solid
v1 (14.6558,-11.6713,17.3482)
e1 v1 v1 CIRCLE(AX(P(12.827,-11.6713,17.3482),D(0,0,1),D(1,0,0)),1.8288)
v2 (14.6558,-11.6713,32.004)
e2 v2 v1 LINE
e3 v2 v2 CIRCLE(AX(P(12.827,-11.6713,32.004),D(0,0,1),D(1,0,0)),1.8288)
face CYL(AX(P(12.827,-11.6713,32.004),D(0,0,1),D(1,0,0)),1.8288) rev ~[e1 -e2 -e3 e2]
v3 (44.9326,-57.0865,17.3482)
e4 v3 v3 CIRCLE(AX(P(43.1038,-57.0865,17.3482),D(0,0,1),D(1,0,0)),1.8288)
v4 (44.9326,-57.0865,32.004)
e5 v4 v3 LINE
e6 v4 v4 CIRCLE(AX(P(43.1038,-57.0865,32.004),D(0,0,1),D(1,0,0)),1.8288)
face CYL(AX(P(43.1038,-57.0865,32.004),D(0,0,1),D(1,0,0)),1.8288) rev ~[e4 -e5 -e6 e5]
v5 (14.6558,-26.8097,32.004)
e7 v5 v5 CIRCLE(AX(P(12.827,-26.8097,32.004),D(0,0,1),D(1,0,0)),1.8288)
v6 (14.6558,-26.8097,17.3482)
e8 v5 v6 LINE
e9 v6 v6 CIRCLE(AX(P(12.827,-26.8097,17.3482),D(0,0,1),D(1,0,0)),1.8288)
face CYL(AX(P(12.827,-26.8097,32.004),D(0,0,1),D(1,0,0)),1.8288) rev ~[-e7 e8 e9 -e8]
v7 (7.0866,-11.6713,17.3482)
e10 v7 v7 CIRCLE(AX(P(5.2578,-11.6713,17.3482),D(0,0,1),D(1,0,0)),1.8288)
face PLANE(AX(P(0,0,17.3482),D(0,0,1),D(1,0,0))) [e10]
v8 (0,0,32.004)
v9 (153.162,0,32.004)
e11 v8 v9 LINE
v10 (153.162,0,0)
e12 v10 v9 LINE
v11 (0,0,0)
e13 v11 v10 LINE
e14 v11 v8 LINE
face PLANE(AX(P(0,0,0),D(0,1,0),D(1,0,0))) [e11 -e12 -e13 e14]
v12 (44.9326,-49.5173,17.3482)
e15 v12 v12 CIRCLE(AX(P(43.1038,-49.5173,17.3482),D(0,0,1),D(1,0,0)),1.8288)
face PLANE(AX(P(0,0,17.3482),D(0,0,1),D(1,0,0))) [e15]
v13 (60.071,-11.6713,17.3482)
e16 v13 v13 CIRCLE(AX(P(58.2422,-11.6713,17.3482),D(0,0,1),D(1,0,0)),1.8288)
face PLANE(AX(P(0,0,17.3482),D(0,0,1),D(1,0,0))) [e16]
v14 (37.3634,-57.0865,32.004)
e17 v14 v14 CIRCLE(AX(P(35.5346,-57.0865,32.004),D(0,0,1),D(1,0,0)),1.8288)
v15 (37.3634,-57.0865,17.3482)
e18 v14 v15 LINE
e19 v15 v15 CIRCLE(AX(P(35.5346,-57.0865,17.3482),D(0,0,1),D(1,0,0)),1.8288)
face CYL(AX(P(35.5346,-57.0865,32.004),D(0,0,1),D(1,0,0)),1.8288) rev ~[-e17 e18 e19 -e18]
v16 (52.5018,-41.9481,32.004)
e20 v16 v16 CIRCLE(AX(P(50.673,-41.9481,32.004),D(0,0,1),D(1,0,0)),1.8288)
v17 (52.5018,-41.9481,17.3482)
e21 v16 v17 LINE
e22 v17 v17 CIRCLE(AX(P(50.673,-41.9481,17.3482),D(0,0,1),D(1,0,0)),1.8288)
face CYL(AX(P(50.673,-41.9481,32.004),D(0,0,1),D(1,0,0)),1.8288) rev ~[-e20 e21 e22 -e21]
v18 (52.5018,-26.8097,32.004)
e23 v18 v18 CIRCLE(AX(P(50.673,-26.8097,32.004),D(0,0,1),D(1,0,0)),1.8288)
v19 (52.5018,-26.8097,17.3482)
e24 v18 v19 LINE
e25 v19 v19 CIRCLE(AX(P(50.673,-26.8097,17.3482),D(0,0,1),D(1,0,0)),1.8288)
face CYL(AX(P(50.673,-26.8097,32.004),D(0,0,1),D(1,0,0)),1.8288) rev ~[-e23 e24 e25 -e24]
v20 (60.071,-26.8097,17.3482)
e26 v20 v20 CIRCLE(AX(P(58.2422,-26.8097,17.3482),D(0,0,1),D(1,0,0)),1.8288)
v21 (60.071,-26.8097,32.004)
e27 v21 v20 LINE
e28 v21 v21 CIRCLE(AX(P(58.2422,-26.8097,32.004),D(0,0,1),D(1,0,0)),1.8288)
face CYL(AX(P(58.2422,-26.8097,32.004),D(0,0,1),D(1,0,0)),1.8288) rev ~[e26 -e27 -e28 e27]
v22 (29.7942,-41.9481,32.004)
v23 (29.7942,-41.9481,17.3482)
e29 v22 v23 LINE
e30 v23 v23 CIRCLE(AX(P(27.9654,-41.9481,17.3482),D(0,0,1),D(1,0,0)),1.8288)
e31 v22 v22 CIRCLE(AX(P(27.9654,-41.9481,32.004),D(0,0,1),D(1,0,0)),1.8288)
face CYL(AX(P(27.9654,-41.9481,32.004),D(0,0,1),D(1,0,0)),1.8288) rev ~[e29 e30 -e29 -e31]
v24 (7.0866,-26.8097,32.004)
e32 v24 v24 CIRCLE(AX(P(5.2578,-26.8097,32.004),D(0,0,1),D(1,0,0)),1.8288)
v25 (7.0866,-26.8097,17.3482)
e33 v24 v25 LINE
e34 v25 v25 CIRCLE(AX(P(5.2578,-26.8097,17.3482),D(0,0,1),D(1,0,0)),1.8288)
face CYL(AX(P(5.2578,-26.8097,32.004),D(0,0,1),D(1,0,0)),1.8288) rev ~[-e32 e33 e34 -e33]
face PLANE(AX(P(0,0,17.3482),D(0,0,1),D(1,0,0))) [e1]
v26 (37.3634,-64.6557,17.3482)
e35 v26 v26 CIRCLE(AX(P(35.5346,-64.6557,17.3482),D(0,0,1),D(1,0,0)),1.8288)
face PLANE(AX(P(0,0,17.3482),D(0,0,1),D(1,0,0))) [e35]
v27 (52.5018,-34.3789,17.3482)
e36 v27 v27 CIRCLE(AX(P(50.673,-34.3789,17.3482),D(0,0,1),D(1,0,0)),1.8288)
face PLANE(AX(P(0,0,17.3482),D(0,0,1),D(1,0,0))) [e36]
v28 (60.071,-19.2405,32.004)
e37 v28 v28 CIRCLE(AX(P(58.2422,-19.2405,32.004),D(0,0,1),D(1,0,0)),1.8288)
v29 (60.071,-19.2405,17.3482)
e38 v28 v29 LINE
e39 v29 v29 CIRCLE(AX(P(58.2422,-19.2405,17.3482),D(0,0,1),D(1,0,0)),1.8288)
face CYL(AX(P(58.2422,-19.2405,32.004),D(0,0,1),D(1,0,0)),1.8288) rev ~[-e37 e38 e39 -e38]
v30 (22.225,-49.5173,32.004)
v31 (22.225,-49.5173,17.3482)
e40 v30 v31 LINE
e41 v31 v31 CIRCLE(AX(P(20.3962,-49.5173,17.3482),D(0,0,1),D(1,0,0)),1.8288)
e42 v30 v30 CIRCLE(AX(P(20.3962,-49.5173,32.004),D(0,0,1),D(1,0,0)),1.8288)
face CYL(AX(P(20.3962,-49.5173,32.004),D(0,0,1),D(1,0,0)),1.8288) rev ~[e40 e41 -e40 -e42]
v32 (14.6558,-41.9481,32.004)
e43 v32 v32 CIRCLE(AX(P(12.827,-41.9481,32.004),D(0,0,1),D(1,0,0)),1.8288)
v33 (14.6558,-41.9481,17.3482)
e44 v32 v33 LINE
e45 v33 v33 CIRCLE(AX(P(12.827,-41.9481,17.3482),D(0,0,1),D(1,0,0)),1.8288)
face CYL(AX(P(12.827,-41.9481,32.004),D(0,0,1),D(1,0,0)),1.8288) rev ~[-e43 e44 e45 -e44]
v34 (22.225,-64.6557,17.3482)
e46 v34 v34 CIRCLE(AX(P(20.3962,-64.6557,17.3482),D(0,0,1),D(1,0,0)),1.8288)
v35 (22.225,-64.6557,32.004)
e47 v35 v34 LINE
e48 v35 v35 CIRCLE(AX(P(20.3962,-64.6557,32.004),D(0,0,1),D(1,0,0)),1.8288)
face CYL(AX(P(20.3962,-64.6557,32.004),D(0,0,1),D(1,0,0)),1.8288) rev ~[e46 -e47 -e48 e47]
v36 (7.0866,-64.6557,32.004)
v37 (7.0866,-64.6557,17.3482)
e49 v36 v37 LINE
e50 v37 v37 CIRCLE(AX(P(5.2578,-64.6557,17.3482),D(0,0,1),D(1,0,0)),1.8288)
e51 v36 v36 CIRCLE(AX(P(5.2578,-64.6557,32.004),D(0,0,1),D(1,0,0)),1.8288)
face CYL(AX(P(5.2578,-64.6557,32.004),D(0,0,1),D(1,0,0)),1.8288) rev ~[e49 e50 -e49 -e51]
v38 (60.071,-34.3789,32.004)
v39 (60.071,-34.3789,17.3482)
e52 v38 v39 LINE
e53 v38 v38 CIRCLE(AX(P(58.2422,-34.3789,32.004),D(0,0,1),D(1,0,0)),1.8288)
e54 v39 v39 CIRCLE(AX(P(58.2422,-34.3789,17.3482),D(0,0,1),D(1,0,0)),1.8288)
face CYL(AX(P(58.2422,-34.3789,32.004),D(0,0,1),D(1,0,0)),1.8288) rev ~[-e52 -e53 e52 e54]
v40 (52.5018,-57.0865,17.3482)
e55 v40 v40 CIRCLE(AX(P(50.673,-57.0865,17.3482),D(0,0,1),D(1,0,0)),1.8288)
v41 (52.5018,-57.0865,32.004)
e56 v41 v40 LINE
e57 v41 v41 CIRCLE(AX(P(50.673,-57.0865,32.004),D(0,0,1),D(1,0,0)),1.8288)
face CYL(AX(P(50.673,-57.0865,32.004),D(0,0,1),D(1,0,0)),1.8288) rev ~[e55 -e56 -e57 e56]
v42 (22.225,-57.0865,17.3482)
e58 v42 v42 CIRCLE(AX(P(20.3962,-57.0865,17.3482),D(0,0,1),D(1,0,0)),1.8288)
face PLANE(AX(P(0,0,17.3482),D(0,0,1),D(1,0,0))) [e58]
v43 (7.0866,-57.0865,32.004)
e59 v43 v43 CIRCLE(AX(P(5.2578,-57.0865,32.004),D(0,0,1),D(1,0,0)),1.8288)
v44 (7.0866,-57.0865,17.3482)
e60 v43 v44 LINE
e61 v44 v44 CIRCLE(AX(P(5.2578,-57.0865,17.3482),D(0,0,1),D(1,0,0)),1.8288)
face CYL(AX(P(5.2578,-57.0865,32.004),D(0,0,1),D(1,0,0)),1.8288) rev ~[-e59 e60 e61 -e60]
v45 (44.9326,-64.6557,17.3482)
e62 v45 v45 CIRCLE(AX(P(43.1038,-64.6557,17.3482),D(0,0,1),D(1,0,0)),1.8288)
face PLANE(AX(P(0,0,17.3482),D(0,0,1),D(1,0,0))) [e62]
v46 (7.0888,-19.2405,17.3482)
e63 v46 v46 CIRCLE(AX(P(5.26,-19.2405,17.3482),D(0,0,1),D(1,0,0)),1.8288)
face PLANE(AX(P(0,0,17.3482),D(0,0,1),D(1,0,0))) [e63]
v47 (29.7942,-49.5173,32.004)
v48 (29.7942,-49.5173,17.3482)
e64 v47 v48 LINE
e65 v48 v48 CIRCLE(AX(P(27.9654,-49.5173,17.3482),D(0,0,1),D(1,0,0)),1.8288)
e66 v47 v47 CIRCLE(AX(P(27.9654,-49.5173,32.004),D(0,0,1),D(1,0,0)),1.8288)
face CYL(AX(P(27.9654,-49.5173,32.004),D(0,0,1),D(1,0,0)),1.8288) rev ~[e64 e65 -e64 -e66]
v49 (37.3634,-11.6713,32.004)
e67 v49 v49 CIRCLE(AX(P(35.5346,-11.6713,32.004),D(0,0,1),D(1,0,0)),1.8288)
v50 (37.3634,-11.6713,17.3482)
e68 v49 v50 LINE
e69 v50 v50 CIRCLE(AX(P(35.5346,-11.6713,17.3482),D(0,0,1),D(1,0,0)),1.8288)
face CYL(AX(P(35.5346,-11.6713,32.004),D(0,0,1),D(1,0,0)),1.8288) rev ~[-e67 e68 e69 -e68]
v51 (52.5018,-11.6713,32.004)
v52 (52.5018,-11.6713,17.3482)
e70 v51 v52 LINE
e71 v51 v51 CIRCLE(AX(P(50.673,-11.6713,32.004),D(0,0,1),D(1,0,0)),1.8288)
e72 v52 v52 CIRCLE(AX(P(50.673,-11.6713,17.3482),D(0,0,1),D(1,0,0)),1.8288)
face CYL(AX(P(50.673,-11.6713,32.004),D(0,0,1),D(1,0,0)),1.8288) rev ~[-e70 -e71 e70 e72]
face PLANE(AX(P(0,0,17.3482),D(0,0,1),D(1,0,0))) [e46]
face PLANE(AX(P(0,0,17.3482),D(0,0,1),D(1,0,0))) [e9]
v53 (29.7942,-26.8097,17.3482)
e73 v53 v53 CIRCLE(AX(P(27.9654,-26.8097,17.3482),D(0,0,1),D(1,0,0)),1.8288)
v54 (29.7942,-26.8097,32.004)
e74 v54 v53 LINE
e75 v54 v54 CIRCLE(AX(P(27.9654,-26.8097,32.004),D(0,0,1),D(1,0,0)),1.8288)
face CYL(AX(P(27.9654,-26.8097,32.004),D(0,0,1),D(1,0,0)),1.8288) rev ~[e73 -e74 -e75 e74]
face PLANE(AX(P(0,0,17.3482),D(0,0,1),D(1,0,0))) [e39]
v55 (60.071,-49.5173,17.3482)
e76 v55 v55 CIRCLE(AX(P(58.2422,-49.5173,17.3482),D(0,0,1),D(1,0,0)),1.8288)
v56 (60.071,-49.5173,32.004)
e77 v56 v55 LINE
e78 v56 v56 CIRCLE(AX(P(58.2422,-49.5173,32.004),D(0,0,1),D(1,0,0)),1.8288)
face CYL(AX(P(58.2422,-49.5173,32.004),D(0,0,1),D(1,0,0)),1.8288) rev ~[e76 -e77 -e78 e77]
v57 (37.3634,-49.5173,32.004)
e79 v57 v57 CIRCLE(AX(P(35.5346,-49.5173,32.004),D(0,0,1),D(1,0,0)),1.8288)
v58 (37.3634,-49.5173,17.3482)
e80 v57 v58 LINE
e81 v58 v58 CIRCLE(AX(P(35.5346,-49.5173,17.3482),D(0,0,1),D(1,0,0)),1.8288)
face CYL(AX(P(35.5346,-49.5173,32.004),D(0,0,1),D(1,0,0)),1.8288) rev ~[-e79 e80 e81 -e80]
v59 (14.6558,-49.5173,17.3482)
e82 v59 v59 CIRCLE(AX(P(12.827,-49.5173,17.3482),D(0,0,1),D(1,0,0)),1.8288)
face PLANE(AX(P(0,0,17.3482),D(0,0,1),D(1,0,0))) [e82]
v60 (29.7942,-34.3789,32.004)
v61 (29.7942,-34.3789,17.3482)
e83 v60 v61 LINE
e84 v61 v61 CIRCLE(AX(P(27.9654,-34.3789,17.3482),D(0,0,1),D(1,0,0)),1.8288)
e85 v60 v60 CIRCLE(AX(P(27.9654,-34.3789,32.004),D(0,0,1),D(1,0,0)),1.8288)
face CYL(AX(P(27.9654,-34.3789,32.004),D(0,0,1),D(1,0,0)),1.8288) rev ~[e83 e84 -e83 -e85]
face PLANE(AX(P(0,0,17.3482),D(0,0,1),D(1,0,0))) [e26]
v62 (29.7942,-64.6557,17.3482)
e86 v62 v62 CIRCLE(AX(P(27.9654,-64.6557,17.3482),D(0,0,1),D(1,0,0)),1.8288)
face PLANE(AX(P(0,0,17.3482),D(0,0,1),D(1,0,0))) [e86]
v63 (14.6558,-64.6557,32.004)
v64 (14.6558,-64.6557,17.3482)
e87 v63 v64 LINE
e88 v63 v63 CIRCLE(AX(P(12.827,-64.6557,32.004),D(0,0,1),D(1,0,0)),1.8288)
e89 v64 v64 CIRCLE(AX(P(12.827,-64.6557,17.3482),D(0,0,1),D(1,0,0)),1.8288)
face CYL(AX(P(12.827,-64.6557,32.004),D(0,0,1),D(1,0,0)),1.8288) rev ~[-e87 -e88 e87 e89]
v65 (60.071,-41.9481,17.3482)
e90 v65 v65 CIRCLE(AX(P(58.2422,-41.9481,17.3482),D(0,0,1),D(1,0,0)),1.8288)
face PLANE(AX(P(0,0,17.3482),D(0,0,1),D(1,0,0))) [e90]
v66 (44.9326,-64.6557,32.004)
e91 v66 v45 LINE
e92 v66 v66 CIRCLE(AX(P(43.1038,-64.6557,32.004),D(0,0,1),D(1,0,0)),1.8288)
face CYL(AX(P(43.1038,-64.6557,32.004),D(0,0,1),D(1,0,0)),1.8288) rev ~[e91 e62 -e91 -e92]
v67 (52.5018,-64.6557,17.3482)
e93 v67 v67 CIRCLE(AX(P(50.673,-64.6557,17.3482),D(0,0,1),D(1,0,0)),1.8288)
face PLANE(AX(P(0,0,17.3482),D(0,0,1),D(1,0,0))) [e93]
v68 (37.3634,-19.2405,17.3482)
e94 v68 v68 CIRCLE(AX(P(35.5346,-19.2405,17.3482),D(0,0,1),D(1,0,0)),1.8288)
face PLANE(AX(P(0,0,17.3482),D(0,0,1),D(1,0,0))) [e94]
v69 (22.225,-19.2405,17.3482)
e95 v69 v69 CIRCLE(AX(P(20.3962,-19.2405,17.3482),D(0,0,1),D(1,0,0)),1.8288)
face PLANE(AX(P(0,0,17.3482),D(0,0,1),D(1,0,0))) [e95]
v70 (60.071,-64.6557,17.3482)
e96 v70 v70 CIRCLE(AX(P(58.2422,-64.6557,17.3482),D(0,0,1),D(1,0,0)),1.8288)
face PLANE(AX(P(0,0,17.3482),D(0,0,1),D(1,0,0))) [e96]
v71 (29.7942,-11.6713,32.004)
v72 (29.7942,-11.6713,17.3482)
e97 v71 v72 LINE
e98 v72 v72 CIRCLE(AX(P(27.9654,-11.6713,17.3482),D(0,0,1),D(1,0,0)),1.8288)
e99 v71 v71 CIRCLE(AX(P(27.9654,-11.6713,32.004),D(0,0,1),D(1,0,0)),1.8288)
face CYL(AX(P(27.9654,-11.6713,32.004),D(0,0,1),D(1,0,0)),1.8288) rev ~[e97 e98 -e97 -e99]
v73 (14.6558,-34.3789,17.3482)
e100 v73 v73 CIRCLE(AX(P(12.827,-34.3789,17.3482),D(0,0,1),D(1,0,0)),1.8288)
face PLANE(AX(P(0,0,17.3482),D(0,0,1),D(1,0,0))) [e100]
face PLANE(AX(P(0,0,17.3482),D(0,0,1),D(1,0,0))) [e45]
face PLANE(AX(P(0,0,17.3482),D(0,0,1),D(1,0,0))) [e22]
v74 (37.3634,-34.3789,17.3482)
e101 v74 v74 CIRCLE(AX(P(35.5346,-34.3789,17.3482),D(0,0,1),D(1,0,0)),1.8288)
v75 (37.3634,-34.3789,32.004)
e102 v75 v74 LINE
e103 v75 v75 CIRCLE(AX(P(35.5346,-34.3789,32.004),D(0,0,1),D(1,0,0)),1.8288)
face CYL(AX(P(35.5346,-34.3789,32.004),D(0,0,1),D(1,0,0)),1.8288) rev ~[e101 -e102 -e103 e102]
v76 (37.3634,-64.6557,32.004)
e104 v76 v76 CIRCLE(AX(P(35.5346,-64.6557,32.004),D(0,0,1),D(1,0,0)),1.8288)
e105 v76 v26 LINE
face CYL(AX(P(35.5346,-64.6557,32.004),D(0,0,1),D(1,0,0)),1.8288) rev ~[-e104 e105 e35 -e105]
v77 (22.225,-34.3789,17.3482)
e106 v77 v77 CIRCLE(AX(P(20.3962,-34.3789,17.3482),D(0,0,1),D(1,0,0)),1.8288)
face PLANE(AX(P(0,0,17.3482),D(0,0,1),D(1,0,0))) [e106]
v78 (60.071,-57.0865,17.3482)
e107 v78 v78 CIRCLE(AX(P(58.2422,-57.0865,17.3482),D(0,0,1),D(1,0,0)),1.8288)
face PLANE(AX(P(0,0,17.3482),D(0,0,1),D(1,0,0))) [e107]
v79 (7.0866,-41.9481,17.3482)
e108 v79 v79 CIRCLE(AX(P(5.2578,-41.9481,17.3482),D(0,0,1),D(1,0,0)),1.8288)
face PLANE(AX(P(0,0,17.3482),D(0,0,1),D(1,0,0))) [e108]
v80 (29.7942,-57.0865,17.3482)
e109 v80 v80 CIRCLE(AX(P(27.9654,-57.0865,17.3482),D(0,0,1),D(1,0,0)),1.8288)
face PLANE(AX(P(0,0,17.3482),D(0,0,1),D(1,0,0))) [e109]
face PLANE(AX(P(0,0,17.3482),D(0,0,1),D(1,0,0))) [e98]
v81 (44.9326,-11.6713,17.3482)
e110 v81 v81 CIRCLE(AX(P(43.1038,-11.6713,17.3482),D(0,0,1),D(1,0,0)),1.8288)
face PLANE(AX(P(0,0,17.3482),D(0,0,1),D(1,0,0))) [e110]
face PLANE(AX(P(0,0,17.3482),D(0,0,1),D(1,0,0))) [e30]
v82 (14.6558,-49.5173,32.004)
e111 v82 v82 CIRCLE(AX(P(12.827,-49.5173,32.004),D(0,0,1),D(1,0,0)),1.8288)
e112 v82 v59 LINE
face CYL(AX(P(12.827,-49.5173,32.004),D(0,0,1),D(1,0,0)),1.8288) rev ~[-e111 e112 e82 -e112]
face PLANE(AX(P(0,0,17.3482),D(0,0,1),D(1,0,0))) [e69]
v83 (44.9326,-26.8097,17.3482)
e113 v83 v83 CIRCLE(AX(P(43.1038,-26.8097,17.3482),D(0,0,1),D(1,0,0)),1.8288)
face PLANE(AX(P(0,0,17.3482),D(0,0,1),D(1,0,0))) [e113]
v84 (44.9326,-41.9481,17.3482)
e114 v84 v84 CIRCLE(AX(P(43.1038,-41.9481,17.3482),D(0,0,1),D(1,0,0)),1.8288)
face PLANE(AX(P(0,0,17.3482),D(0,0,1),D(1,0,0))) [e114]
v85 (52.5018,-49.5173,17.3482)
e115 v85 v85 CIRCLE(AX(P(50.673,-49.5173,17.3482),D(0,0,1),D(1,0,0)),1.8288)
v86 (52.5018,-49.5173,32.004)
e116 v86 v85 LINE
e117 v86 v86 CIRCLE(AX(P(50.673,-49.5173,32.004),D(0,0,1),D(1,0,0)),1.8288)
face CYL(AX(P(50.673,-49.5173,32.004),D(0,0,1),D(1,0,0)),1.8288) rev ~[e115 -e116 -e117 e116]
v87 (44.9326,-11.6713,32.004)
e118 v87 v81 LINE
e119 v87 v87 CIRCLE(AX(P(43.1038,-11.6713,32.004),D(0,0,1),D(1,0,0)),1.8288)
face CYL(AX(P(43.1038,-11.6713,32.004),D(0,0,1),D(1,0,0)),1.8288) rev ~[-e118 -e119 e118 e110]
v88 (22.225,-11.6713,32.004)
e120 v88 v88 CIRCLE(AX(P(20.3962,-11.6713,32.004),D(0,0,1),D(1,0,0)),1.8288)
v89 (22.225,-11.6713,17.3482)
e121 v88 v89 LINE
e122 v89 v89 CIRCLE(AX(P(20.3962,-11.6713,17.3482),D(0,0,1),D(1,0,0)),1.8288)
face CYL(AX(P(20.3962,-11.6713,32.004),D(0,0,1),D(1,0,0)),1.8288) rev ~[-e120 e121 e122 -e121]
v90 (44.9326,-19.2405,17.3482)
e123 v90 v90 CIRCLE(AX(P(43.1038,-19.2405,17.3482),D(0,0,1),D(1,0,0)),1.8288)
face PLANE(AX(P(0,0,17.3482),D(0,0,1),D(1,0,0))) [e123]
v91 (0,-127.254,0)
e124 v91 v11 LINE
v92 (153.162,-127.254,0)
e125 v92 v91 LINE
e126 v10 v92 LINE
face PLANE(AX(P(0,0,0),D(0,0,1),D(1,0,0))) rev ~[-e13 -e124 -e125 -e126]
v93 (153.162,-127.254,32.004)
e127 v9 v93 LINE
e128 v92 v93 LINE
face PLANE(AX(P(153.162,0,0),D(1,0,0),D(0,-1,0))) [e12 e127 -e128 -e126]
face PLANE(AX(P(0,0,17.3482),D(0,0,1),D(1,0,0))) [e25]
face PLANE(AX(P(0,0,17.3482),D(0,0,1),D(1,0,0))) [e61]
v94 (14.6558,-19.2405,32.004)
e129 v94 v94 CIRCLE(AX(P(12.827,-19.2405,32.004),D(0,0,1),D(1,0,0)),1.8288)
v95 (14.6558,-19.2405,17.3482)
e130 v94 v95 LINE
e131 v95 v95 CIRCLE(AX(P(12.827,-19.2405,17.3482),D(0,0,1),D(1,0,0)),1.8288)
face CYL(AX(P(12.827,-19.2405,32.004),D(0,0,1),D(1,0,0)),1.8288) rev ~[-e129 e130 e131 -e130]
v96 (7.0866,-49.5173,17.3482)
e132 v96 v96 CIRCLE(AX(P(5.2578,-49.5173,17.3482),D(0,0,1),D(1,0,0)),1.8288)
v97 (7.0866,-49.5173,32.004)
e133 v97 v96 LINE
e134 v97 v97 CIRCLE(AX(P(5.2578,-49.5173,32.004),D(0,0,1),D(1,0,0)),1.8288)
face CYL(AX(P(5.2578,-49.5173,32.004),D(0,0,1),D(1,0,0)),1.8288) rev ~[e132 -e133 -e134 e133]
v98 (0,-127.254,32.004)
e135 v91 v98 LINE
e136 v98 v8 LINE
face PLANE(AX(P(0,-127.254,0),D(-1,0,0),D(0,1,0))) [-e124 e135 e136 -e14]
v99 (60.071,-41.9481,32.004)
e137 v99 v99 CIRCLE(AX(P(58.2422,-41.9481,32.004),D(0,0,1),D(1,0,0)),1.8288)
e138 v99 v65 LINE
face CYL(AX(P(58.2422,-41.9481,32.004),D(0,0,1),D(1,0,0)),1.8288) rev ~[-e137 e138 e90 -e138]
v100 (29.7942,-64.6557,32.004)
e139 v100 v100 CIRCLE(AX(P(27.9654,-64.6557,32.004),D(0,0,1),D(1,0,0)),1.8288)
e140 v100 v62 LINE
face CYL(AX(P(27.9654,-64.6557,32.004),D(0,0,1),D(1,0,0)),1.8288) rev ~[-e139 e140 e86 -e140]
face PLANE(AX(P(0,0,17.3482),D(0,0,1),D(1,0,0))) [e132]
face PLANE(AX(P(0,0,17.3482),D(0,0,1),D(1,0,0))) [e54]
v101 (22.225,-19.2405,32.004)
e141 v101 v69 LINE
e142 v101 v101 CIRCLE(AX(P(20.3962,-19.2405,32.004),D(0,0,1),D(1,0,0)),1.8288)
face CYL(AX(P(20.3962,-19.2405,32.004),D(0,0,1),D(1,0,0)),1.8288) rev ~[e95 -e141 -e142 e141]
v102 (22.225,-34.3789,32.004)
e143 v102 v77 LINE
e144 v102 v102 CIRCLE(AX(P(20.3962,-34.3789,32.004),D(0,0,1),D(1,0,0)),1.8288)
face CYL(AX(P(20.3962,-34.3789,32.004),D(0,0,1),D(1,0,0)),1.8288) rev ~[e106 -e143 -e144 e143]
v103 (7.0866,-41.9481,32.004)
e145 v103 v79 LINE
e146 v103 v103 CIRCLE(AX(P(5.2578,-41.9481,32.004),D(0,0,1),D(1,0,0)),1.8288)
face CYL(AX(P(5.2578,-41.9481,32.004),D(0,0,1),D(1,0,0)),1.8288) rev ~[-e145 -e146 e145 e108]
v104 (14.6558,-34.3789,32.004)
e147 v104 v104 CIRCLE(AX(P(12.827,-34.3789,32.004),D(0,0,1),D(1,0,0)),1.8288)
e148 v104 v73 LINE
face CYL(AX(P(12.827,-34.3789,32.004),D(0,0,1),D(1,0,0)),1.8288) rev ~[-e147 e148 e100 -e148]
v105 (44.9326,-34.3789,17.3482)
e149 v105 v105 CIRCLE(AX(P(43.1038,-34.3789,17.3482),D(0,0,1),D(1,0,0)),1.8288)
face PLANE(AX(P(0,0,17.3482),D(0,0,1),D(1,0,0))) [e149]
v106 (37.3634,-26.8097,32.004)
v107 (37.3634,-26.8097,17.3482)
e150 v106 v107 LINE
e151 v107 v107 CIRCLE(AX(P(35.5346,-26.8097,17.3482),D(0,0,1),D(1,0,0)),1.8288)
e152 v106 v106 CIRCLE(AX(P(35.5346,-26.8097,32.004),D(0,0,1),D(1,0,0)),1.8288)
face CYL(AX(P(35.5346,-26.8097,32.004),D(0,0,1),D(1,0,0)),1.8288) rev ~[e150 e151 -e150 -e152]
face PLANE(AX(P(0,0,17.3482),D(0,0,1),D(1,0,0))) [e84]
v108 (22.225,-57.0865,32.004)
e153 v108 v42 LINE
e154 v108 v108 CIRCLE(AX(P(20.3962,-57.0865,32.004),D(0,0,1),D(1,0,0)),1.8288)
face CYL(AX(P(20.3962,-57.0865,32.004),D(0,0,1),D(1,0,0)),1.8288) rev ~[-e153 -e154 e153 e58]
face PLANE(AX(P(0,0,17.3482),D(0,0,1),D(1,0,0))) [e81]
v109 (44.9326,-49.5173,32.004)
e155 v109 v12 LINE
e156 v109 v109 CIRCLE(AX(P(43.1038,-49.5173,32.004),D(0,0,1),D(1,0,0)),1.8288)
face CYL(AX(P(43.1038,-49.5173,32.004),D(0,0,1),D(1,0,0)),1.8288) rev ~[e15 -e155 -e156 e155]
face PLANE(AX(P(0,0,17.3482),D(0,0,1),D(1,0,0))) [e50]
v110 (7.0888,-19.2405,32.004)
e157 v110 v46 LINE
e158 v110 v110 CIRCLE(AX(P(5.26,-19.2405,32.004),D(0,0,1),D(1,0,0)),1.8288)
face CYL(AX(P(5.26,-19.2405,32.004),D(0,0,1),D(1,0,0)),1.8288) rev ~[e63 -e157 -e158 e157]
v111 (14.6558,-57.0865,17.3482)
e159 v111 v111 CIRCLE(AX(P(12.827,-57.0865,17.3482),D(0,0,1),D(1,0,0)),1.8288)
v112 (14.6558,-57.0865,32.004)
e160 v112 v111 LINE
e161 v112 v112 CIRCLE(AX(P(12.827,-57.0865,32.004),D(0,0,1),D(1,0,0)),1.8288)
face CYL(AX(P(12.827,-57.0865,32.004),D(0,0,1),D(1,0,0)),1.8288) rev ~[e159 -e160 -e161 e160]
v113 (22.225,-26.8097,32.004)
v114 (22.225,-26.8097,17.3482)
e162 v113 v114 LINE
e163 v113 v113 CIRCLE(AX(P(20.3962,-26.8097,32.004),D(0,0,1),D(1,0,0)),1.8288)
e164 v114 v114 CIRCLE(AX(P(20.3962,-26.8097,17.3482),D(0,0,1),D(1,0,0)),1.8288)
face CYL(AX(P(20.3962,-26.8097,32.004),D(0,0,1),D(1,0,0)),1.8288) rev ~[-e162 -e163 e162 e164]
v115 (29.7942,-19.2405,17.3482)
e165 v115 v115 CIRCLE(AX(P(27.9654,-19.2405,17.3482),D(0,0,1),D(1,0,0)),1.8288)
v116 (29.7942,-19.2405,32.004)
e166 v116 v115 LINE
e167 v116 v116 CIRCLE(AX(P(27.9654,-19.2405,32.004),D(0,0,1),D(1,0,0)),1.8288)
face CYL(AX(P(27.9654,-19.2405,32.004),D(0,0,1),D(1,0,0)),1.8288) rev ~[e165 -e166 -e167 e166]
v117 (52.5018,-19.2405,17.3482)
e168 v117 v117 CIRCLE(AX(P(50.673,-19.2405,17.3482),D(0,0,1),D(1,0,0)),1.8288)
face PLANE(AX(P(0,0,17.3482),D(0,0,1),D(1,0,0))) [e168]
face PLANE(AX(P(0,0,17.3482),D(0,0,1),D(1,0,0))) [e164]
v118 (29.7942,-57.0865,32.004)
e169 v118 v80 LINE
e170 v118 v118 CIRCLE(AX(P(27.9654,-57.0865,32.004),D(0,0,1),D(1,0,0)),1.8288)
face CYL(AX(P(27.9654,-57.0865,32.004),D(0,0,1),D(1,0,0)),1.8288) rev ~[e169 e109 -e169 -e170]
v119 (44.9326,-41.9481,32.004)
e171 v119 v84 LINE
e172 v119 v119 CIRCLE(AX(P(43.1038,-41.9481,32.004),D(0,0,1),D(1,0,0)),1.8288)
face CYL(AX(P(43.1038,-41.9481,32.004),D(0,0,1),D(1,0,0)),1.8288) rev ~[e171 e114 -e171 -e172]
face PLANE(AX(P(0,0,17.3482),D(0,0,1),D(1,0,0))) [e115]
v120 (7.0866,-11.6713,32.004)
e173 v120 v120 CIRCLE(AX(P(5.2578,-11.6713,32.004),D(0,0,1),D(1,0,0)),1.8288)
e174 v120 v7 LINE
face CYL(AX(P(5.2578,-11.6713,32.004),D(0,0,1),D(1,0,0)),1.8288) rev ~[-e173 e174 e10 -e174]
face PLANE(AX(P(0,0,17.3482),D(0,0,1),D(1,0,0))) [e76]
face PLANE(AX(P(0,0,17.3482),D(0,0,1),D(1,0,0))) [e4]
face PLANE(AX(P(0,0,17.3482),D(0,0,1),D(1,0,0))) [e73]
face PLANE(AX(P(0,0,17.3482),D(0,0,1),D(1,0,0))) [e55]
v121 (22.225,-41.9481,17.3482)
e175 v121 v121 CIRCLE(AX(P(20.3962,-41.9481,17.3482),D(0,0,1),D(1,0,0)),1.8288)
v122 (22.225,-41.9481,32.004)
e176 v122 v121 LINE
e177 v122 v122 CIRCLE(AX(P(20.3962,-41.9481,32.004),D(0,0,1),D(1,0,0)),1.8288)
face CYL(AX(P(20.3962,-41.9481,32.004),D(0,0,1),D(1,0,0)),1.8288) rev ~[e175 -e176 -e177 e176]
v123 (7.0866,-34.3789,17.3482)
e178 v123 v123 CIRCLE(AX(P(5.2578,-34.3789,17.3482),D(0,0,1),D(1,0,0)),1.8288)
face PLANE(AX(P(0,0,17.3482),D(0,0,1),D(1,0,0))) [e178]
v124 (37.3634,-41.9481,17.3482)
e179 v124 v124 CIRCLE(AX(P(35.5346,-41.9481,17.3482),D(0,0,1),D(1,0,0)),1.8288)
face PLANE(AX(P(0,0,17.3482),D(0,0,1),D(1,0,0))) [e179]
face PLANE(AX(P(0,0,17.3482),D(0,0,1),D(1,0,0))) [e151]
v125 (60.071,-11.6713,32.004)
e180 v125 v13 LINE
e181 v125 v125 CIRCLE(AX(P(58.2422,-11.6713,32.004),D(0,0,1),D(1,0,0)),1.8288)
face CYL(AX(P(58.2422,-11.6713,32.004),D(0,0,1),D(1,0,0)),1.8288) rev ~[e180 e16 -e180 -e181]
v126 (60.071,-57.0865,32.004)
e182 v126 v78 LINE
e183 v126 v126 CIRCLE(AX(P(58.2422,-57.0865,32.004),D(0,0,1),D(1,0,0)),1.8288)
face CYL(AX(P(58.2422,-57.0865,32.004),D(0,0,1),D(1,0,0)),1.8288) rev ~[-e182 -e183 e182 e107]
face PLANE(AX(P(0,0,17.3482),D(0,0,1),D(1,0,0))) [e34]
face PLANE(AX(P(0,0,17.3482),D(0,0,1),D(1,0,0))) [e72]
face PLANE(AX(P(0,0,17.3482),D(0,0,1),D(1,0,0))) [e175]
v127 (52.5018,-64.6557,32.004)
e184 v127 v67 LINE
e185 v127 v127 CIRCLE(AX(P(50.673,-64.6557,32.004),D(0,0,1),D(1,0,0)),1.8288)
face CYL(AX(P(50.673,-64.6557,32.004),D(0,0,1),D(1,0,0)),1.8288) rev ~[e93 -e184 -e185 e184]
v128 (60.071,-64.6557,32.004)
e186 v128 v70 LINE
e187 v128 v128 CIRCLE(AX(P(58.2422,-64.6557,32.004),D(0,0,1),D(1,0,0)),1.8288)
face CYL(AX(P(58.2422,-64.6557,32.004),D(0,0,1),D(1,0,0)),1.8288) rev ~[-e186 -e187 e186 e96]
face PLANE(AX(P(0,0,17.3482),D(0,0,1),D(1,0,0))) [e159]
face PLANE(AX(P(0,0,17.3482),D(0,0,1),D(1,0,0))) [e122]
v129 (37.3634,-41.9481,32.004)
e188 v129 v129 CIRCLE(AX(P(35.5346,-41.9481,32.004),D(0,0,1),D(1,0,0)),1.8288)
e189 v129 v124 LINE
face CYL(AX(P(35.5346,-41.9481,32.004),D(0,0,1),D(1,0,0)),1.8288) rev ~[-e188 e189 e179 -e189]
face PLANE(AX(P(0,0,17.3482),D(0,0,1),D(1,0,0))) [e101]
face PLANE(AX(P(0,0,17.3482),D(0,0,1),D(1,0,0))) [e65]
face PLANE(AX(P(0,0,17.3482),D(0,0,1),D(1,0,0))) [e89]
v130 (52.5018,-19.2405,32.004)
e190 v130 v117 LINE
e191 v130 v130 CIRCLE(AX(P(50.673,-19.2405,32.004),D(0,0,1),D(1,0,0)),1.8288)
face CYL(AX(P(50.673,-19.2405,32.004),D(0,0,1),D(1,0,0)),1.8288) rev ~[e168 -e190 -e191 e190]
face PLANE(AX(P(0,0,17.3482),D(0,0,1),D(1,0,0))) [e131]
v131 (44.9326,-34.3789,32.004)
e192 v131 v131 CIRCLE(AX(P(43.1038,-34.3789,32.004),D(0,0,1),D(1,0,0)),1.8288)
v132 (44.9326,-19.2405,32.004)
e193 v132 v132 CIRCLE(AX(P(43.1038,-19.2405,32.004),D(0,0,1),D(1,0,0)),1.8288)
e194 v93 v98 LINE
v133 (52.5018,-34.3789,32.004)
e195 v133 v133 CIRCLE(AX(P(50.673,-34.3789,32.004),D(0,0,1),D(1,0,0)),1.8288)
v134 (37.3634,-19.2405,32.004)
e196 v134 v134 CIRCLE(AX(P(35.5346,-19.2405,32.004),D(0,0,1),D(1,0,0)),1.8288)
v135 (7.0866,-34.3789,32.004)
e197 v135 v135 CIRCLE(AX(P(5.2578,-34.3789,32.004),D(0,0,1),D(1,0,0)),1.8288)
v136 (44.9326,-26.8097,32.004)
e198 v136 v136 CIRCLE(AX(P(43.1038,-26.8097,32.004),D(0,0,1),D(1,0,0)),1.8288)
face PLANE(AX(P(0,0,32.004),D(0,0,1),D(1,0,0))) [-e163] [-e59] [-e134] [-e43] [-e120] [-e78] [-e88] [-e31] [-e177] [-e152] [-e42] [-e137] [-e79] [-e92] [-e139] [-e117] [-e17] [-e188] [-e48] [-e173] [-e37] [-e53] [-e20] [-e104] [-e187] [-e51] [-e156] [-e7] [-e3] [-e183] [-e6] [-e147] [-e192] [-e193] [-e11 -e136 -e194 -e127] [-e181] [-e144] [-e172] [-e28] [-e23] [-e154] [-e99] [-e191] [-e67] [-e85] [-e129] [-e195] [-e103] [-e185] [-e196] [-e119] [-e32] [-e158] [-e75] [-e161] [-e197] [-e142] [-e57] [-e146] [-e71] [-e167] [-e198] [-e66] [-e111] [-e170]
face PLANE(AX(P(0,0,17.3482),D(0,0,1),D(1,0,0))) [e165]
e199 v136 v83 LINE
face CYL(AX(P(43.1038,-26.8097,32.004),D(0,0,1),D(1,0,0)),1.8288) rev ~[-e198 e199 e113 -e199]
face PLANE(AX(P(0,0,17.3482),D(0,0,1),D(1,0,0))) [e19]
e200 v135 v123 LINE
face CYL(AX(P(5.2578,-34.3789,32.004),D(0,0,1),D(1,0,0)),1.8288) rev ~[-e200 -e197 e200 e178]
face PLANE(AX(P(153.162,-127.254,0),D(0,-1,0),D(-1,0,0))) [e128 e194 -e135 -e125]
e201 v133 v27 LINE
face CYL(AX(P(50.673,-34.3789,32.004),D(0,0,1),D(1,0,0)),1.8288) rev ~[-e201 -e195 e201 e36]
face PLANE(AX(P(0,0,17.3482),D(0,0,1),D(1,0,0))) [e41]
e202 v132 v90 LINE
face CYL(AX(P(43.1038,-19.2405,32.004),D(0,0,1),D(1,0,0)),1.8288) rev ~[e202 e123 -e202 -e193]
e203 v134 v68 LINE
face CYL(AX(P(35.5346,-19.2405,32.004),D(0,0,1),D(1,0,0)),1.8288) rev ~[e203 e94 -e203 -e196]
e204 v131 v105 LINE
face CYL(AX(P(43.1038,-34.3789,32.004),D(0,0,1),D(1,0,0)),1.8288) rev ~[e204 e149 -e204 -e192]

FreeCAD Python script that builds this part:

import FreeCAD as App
import Part
import Sketcher
from FreeCAD import Vector
Q = App.Units.Quantity


def add_polygon(sketch, points):
    """Adds a closed chain of lines whose ends are joined by coincident constraints."""
    first, n = sketch.GeometryCount, len(points)
    for a, b in zip(points, points[1:] + points[:1]):
        sketch.addGeometry(Part.LineSegment(App.Vector(*a, 0), App.Vector(*b, 0)), False)
    for i in range(n):
        sketch.addConstraint(Sketcher.Constraint("Coincident", first + i, 2, first + (i + 1) % n, 1))

doc = App.newDocument("Part")
body = doc.addObject("PartDesign::Body", "Body")

# Sketch on XY plane
sketch1 = doc.addObject("Sketcher::SketchObject", "Sketch")
body.addObject(sketch1)
sketch1.AttachmentSupport = (doc.XY_Plane, [""])
sketch1.MapMode = "FlatFace"
add_polygon(sketch1, [(153.162, 0), (0, 0), (0, -127.254), (153.162, -127.254)])  # lines 0-3
sketch1.addConstraint(Sketcher.Constraint("Horizontal", 0))
sketch1.addConstraint(Sketcher.Constraint("Vertical", 1))
sketch1.addConstraint(Sketcher.Constraint("Horizontal", 2))
sketch1.addConstraint(Sketcher.Constraint("Vertical", 3))
sketch1.addConstraint(Sketcher.Constraint("Coincident", 0, 2, -1, 1))
sketch1.addConstraint(Sketcher.Constraint("DistanceX", 0, 2, 0, 1, Q("6.03 in")))
sketch1.addConstraint(Sketcher.Constraint("DistanceY", 1, 2, 1, 1, Q("5.01 in")))
pad1 = doc.addObject("PartDesign::Pad", "Pad")
body.addObject(pad1)
pad1.Profile = sketch1
pad1.Length = Q("1.26 in")

# Sketch on XY plane
sketch2 = doc.addObject("Sketcher::SketchObject", "Sketch001")
body.addObject(sketch2)
sketch2.AttachmentSupport = (doc.XY_Plane, [""])
sketch2.MapMode = "FlatFace"
sketch2.AttachmentOffset = App.Placement(Vector(0, 0, 1.26 * 25.4), App.Rotation())
sketch2.addGeometry(Part.Circle(Vector(5.2578, -64.6557, 0), Vector(0, 0, 1), 1.8288), False)
sketch2.addConstraint(Sketcher.Constraint("Diameter", 0, Q("0.144 in")))
sketch2.addConstraint(Sketcher.Constraint("DistanceX", -1, 1, 0, 3, Q("0.207 in")))
sketch2.addConstraint(Sketcher.Constraint("DistanceY", 0, 3, -1, 1, Q("2.5455 in")))
pocket1 = doc.addObject("PartDesign::Pocket", "Pocket")
body.addObject(pocket1)
pocket1.Profile = sketch2
pocket1.Length = Q("0.577 in")

# Sketch on XY plane
sketch3 = doc.addObject("Sketcher::SketchObject", "Sketch002")
body.addObject(sketch3)
sketch3.AttachmentSupport = (doc.XY_Plane, [""])
sketch3.MapMode = "FlatFace"
sketch3.AttachmentOffset = App.Placement(Vector(0, 0, 1.26 * 25.4), App.Rotation())
sketch3.addGeometry(Part.Circle(Vector(5.2578, -64.6557, 0), Vector(0, 0, 1), 1.8288), False)
sketch3.addGeometry(Part.Circle(Vector(5.2578, -57.0865, 0), Vector(0, 0, 1), 1.8288), False)
sketch3.addGeometry(Part.Circle(Vector(12.827, -57.0865, 0), Vector(0, 0, 1), 1.8288), False)
sketch3.addGeometry(Part.Circle(Vector(12.827, -64.6557, 0), Vector(0, 0, 1), 1.8288), False)
sketch3.addGeometry(Part.Circle(Vector(12.827, -49.5173, 0), Vector(0, 0, 1), 1.8288), False)
sketch3.addGeometry(Part.Circle(Vector(5.2578, -49.5173, 0), Vector(0, 0, 1), 1.8288), False)
sketch3.addGeometry(Part.Circle(Vector(12.827, -41.9481, 0), Vector(0, 0, 1), 1.8288), False)
sketch3.addGeometry(Part.Circle(Vector(5.2578, -41.9481, 0), Vector(0, 0, 1), 1.8288), False)
sketch3.addGeometry(Part.Circle(Vector(20.3962, -64.6557, 0), Vector(0, 0, 1), 1.8288), False)
sketch3.addGeometry(Part.Circle(Vector(20.3962, -57.0865, 0), Vector(0, 0, 1), 1.8288), False)
sketch3.addGeometry(Part.Circle(Vector(20.3962, -49.5173, 0), Vector(0, 0, 1), 1.8288), False)
sketch3.addGeometry(Part.Circle(Vector(5.2578, -34.3789, 0), Vector(0, 0, 1), 1.8288), False)
sketch3.addGeometry(Part.Circle(Vector(12.827, -34.3789, 0), Vector(0, 0, 1), 1.8288), False)
sketch3.addGeometry(Part.Circle(Vector(12.827, -26.8097, 0), Vector(0, 0, 1), 1.8288), False)
sketch3.addGeometry(Part.Circle(Vector(12.827, -19.2405, 0), Vector(0, 0, 1), 1.8288), False)
sketch3.addGeometry(Part.Circle(Vector(5.26, -19.2405, 0), Vector(0, 0, 1), 1.8288), False)
sketch3.addGeometry(Part.Circle(Vector(5.2578, -26.8097, 0), Vector(0, 0, 1), 1.8288), False)
sketch3.addGeometry(Part.Circle(Vector(27.9654, -64.6557, 0), Vector(0, 0, 1), 1.8288), False)
sketch3.addGeometry(Part.Circle(Vector(27.9654, -57.0865, 0), Vector(0, 0, 1), 1.8288), False)
sketch3.addGeometry(Part.Circle(Vector(27.9654, -49.5173, 0), Vector(0, 0, 1), 1.8288), False)
sketch3.addGeometry(Part.Circle(Vector(27.9654, -41.9481, 0), Vector(0, 0, 1), 1.8288), False)
sketch3.addGeometry(Part.Circle(Vector(27.9654, -34.3789, 0), Vector(0, 0, 1), 1.8288), False)
sketch3.addGeometry(Part.Circle(Vector(27.9654, -26.8097, 0), Vector(0, 0, 1), 1.8288), False)
sketch3.addGeometry(Part.Circle(Vector(35.5346, -64.6557, 0), Vector(0, 0, 1), 1.8288), False)
sketch3.addGeometry(Part.Circle(Vector(35.5346, -57.0865, 0), Vector(0, 0, 1), 1.8288), False)
sketch3.addGeometry(Part.Circle(Vector(35.5346, -49.5173, 0), Vector(0, 0, 1), 1.8288), False)
sketch3.addGeometry(Part.Circle(Vector(35.5346, -41.9481, 0), Vector(0, 0, 1), 1.8288), False)
sketch3.addGeometry(Part.Circle(Vector(35.5346, -34.3789, 0), Vector(0, 0, 1), 1.8288), False)
sketch3.addGeometry(Part.Circle(Vector(35.5346, -26.8097, 0), Vector(0, 0, 1), 1.8288), False)
sketch3.addGeometry(Part.Circle(Vector(35.5346, -19.2405, 0), Vector(0, 0, 1), 1.8288), False)
sketch3.addGeometry(Part.Circle(Vector(27.9654, -19.2405, 0), Vector(0, 0, 1), 1.8288), False)
sketch3.addGeometry(Part.Circle(Vector(20.3962, -19.2405, 0), Vector(0, 0, 1), 1.8288), False)
sketch3.addGeometry(Part.Circle(Vector(20.3962, -26.8097, 0), Vector(0, 0, 1), 1.8288), False)
sketch3.addGeometry(Part.Circle(Vector(20.3962, -34.3789, 0), Vector(0, 0, 1), 1.8288), False)
sketch3.addGeometry(Part.Circle(Vector(20.3962, -11.6713, 0), Vector(0, 0, 1), 1.8288), False)
sketch3.addGeometry(Part.Circle(Vector(27.9654, -11.6713, 0), Vector(0, 0, 1), 1.8288), False)
sketch3.addGeometry(Part.Circle(Vector(35.5346, -11.6713, 0), Vector(0, 0, 1), 1.8288), False)
sketch3.addGeometry(Part.Circle(Vector(43.1038, -11.6713, 0), Vector(0, 0, 1), 1.8288), False)
sketch3.addGeometry(Part.Circle(Vector(43.1038, -19.2405, 0), Vector(0, 0, 1), 1.8288), False)
sketch3.addGeometry(Part.Circle(Vector(43.1038, -26.8097, 0), Vector(0, 0, 1), 1.8288), False)
sketch3.addGeometry(Part.Circle(Vector(43.1038, -34.3789, 0), Vector(0, 0, 1), 1.8288), False)
sketch3.addGeometry(Part.Circle(Vector(43.1038, -41.9481, 0), Vector(0, 0, 1), 1.8288), False)
sketch3.addGeometry(Part.Circle(Vector(43.1038, -49.5173, 0), Vector(0, 0, 1), 1.8288), False)
sketch3.addGeometry(Part.Circle(Vector(43.1038, -57.0865, 0), Vector(0, 0, 1), 1.8288), False)
sketch3.addGeometry(Part.Circle(Vector(43.1038, -64.6557, 0), Vector(0, 0, 1), 1.8288), False)
sketch3.addGeometry(Part.Circle(Vector(50.673, -64.6557, 0), Vector(0, 0, 1), 1.8288), False)
sketch3.addGeometry(Part.Circle(Vector(58.2422, -64.6557, 0), Vector(0, 0, 1), 1.8288), False)
sketch3.addGeometry(Part.Circle(Vector(50.673, -57.0865, 0), Vector(0, 0, 1), 1.8288), False)
sketch3.addGeometry(Part.Circle(Vector(58.2422, -57.0865, 0), Vector(0, 0, 1), 1.8288), False)
sketch3.addGeometry(Part.Circle(Vector(50.673, -49.5173, 0), Vector(0, 0, 1), 1.8288), False)
sketch3.addGeometry(Part.Circle(Vector(58.2422, -49.5173, 0), Vector(0, 0, 1), 1.8288), False)
sketch3.addGeometry(Part.Circle(Vector(58.2422, -41.9481, 0), Vector(0, 0, 1), 1.8288), False)
sketch3.addGeometry(Part.Circle(Vector(50.673, -41.9481, 0), Vector(0, 0, 1), 1.8288), False)
sketch3.addGeometry(Part.Circle(Vector(50.673, -34.3789, 0), Vector(0, 0, 1), 1.8288), False)
sketch3.addGeometry(Part.Circle(Vector(58.2422, -34.3789, 0), Vector(0, 0, 1), 1.8288), False)
sketch3.addGeometry(Part.Circle(Vector(58.2422, -26.8097, 0), Vector(0, 0, 1), 1.8288), False)
sketch3.addGeometry(Part.Circle(Vector(50.673, -26.8097, 0), Vector(0, 0, 1), 1.8288), False)
sketch3.addGeometry(Part.Circle(Vector(50.673, -19.2405, 0), Vector(0, 0, 1), 1.8288), False)
sketch3.addGeometry(Part.Circle(Vector(58.2422, -19.2405, 0), Vector(0, 0, 1), 1.8288), False)
sketch3.addGeometry(Part.Circle(Vector(58.2422, -11.6713, 0), Vector(0, 0, 1), 1.8288), False)
sketch3.addGeometry(Part.Circle(Vector(50.673, -11.6713, 0), Vector(0, 0, 1), 1.8288), False)
sketch3.addGeometry(Part.Circle(Vector(5.2578, -11.6713, 0), Vector(0, 0, 1), 1.8288), False)
sketch3.addGeometry(Part.Circle(Vector(12.827, -11.6713, 0), Vector(0, 0, 1), 1.8288), False)
sketch3.addGeometry(Part.Circle(Vector(20.3962, -41.9481, 0), Vector(0, 0, 1), 1.8288), False)
sketch3.addConstraint(Sketcher.Constraint("Equal", 0, 1))
sketch3.addConstraint(Sketcher.Constraint("Equal", 1, 2))
sketch3.addConstraint(Sketcher.Constraint("Equal", 2, 3))
sketch3.addConstraint(Sketcher.Constraint("Equal", 3, 4))
sketch3.addConstraint(Sketcher.Constraint("Equal", 4, 5))
sketch3.addConstraint(Sketcher.Constraint("Equal", 5, 6))
sketch3.addConstraint(Sketcher.Constraint("Equal", 6, 7))
sketch3.addConstraint(Sketcher.Constraint("Equal", 7, 8))
sketch3.addConstraint(Sketcher.Constraint("Equal", 8, 9))
sketch3.addConstraint(Sketcher.Constraint("Equal", 9, 10))
sketch3.addConstraint(Sketcher.Constraint("Equal", 10, 11))
sketch3.addConstraint(Sketcher.Constraint("Equal", 11, 12))
sketch3.addConstraint(Sketcher.Constraint("Equal", 12, 13))
sketch3.addConstraint(Sketcher.Constraint("Equal", 13, 14))
sketch3.addConstraint(Sketcher.Constraint("Equal", 14, 15))
sketch3.addConstraint(Sketcher.Constraint("Equal", 15, 16))
sketch3.addConstraint(Sketcher.Constraint("Equal", 16, 17))
sketch3.addConstraint(Sketcher.Constraint("Equal", 17, 18))
sketch3.addConstraint(Sketcher.Constraint("Equal", 18, 19))
sketch3.addConstraint(Sketcher.Constraint("Equal", 19, 20))
sketch3.addConstraint(Sketcher.Constraint("Equal", 20, 21))
sketch3.addConstraint(Sketcher.Constraint("Equal", 21, 22))
sketch3.addConstraint(Sketcher.Constraint("Equal", 22, 23))
sketch3.addConstraint(Sketcher.Constraint("Equal", 23, 24))
sketch3.addConstraint(Sketcher.Constraint("Equal", 24, 25))
sketch3.addConstraint(Sketcher.Constraint("Equal", 25, 26))
sketch3.addConstraint(Sketcher.Constraint("Equal", 26, 27))
sketch3.addConstraint(Sketcher.Constraint("Equal", 27, 28))
sketch3.addConstraint(Sketcher.Constraint("Equal", 28, 29))
sketch3.addConstraint(Sketcher.Constraint("Equal", 29, 30))
sketch3.addConstraint(Sketcher.Constraint("Equal", 30, 31))
sketch3.addConstraint(Sketcher.Constraint("Equal", 31, 32))
sketch3.addConstraint(Sketcher.Constraint("Equal", 32, 33))
sketch3.addConstraint(Sketcher.Constraint("Equal", 33, 34))
sketch3.addConstraint(Sketcher.Constraint("Equal", 34, 35))
sketch3.addConstraint(Sketcher.Constraint("Equal", 35, 36))
sketch3.addConstraint(Sketcher.Constraint("Equal", 36, 37))
sketch3.addConstraint(Sketcher.Constraint("Equal", 37, 38))
sketch3.addConstraint(Sketcher.Constraint("Equal", 38, 39))
sketch3.addConstraint(Sketcher.Constraint("Equal", 39, 40))
sketch3.addConstraint(Sketcher.Constraint("Equal", 40, 41))
sketch3.addConstraint(Sketcher.Constraint("Equal", 41, 42))
sketch3.addConstraint(Sketcher.Constraint("Equal", 42, 43))
sketch3.addConstraint(Sketcher.Constraint("Equal", 43, 44))
sketch3.addConstraint(Sketcher.Constraint("Equal", 44, 45))
sketch3.addConstraint(Sketcher.Constraint("Equal", 45, 46))
sketch3.addConstraint(Sketcher.Constraint("Equal", 46, 47))
sketch3.addConstraint(Sketcher.Constraint("Equal", 47, 48))
sketch3.addConstraint(Sketcher.Constraint("Equal", 48, 49))
sketch3.addConstraint(Sketcher.Constraint("Equal", 49, 50))
sketch3.addConstraint(Sketcher.Constraint("Equal", 50, 51))
sketch3.addConstraint(Sketcher.Constraint("Equal", 51, 52))
sketch3.addConstraint(Sketcher.Constraint("Equal", 52, 53))
sketch3.addConstraint(Sketcher.Constraint("Equal", 53, 54))
sketch3.addConstraint(Sketcher.Constraint("Equal", 54, 55))
sketch3.addConstraint(Sketcher.Constraint("Equal", 55, 56))
sketch3.addConstraint(Sketcher.Constraint("Equal", 56, 57))
sketch3.addConstraint(Sketcher.Constraint("Equal", 57, 58))
sketch3.addConstraint(Sketcher.Constraint("Equal", 58, 59))
sketch3.addConstraint(Sketcher.Constraint("Equal", 59, 60))
sketch3.addConstraint(Sketcher.Constraint("Equal", 60, 61))
sketch3.addConstraint(Sketcher.Constraint("Equal", 61, 62))
sketch3.addConstraint(Sketcher.Constraint("Equal", 62, 63))
sketch3.addConstraint(Sketcher.Constraint("Horizontal", 1, 3, 2, 3))
sketch3.addConstraint(Sketcher.Constraint("Horizontal", 0, 3, 3, 3))
sketch3.addConstraint(Sketcher.Constraint("Horizontal", 4, 3, 5, 3))
sketch3.addConstraint(Sketcher.Constraint("Horizontal", 6, 3, 7, 3))
sketch3.addConstraint(Sketcher.Constraint("Horizontal", 3, 3, 8, 3))
sketch3.addConstraint(Sketcher.Constraint("Horizontal", 2, 3, 9, 3))
sketch3.addConstraint(Sketcher.Constraint("Horizontal", 5, 3, 10, 3))
sketch3.addConstraint(Sketcher.Constraint("Horizontal", 11, 3, 12, 3))
sketch3.addConstraint(Sketcher.Constraint("Horizontal", 14, 3, 15, 3))
sketch3.addConstraint(Sketcher.Constraint("Horizontal", 13, 3, 16, 3))
sketch3.addConstraint(Sketcher.Constraint("Horizontal", 8, 3, 17, 3))
sketch3.addConstraint(Sketcher.Constraint("Horizontal", 9, 3, 18, 3))
sketch3.addConstraint(Sketcher.Constraint("Horizontal", 10, 3, 19, 3))
sketch3.addConstraint(Sketcher.Constraint("Horizontal", 7, 3, 20, 3))
sketch3.addConstraint(Sketcher.Constraint("Horizontal", 12, 3, 21, 3))
sketch3.addConstraint(Sketcher.Constraint("Horizontal", 16, 3, 22, 3))
sketch3.addConstraint(Sketcher.Constraint("Horizontal", 17, 3, 23, 3))
sketch3.addConstraint(Sketcher.Constraint("Horizontal", 18, 3, 24, 3))
sketch3.addConstraint(Sketcher.Constraint("Horizontal", 19, 3, 25, 3))
sketch3.addConstraint(Sketcher.Constraint("Horizontal", 20, 3, 26, 3))
sketch3.addConstraint(Sketcher.Constraint("Horizontal", 21, 3, 27, 3))
sketch3.addConstraint(Sketcher.Constraint("Horizontal", 22, 3, 28, 3))
sketch3.addConstraint(Sketcher.Constraint("Horizontal", 15, 3, 29, 3))
sketch3.addConstraint(Sketcher.Constraint("Horizontal", 29, 3, 30, 3))
sketch3.addConstraint(Sketcher.Constraint("Horizontal", 30, 3, 31, 3))
sketch3.addConstraint(Sketcher.Constraint("Horizontal", 28, 3, 32, 3))
sketch3.addConstraint(Sketcher.Constraint("Horizontal", 27, 3, 33, 3))
sketch3.addConstraint(Sketcher.Constraint("Horizontal", 34, 3, 35, 3))
sketch3.addConstraint(Sketcher.Constraint("Horizontal", 35, 3, 36, 3))
sketch3.addConstraint(Sketcher.Constraint("Horizontal", 36, 3, 37, 3))
sketch3.addConstraint(Sketcher.Constraint("Horizontal", 31, 3, 38, 3))
sketch3.addConstraint(Sketcher.Constraint("Horizontal", 32, 3, 39, 3))
sketch3.addConstraint(Sketcher.Constraint("Horizontal", 33, 3, 40, 3))
sketch3.addConstraint(Sketcher.Constraint("Horizontal", 26, 3, 41, 3))
sketch3.addConstraint(Sketcher.Constraint("Horizontal", 25, 3, 42, 3))
sketch3.addConstraint(Sketcher.Constraint("Horizontal", 24, 3, 43, 3))
sketch3.addConstraint(Sketcher.Constraint("Horizontal", 23, 3, 44, 3))
sketch3.addConstraint(Sketcher.Constraint("Horizontal", 44, 3, 45, 3))
sketch3.addConstraint(Sketcher.Constraint("Horizontal", 45, 3, 46, 3))
sketch3.addConstraint(Sketcher.Constraint("Horizontal", 43, 3, 47, 3))
sketch3.addConstraint(Sketcher.Constraint("Horizontal", 47, 3, 48, 3))
sketch3.addConstraint(Sketcher.Constraint("Horizontal", 42, 3, 49, 3))
sketch3.addConstraint(Sketcher.Constraint("Horizontal", 49, 3, 50, 3))
sketch3.addConstraint(Sketcher.Constraint("Horizontal", 41, 3, 51, 3))
sketch3.addConstraint(Sketcher.Constraint("Horizontal", 51, 3, 52, 3))
sketch3.addConstraint(Sketcher.Constraint("Horizontal", 40, 3, 53, 3))
sketch3.addConstraint(Sketcher.Constraint("Horizontal", 53, 3, 54, 3))
sketch3.addConstraint(Sketcher.Constraint("Horizontal", 39, 3, 55, 3))
sketch3.addConstraint(Sketcher.Constraint("Horizontal", 55, 3, 56, 3))
sketch3.addConstraint(Sketcher.Constraint("Horizontal", 38, 3, 57, 3))
sketch3.addConstraint(Sketcher.Constraint("Horizontal", 57, 3, 58, 3))
sketch3.addConstraint(Sketcher.Constraint("Horizontal", 37, 3, 59, 3))
sketch3.addConstraint(Sketcher.Constraint("Horizontal", 59, 3, 60, 3))
sketch3.addConstraint(Sketcher.Constraint("Horizontal", 60, 3, 61, 3))
sketch3.addConstraint(Sketcher.Constraint("Horizontal", 61, 3, 62, 3))
sketch3.addConstraint(Sketcher.Constraint("Horizontal", 52, 3, 63, 3))
sketch3.addConstraint(Sketcher.Constraint("Vertical", 0, 3, 1, 3))
sketch3.addConstraint(Sketcher.Constraint("Vertical", 2, 3, 3, 3))
sketch3.addConstraint(Sketcher.Constraint("Vertical", 3, 3, 4, 3))
sketch3.addConstraint(Sketcher.Constraint("Vertical", 1, 3, 5, 3))
sketch3.addConstraint(Sketcher.Constraint("Vertical", 4, 3, 6, 3))
sketch3.addConstraint(Sketcher.Constraint("Vertical", 5, 3, 7, 3))
sketch3.addConstraint(Sketcher.Constraint("Vertical", 8, 3, 9, 3))
sketch3.addConstraint(Sketcher.Constraint("Vertical", 9, 3, 10, 3))
sketch3.addConstraint(Sketcher.Constraint("Vertical", 7, 3, 11, 3))
sketch3.addConstraint(Sketcher.Constraint("Vertical", 6, 3, 12, 3))
sketch3.addConstraint(Sketcher.Constraint("Vertical", 12, 3, 13, 3))
sketch3.addConstraint(Sketcher.Constraint("Vertical", 13, 3, 14, 3))
sketch3.addConstraint(Sketcher.Constraint("Vertical", 11, 3, 16, 3))
sketch3.addConstraint(Sketcher.Constraint("Vertical", 17, 3, 18, 3))
sketch3.addConstraint(Sketcher.Constraint("Vertical", 18, 3, 19, 3))
sketch3.addConstraint(Sketcher.Constraint("Vertical", 19, 3, 20, 3))
sketch3.addConstraint(Sketcher.Constraint("Vertical", 20, 3, 21, 3))
sketch3.addConstraint(Sketcher.Constraint("Vertical", 21, 3, 22, 3))
sketch3.addConstraint(Sketcher.Constraint("Vertical", 23, 3, 24, 3))
sketch3.addConstraint(Sketcher.Constraint("Vertical", 24, 3, 25, 3))
sketch3.addConstraint(Sketcher.Constraint("Vertical", 25, 3, 26, 3))
sketch3.addConstraint(Sketcher.Constraint("Vertical", 26, 3, 27, 3))
sketch3.addConstraint(Sketcher.Constraint("Vertical", 27, 3, 28, 3))
sketch3.addConstraint(Sketcher.Constraint("Vertical", 28, 3, 29, 3))
sketch3.addConstraint(Sketcher.Constraint("Vertical", 22, 3, 30, 3))
sketch3.addConstraint(Sketcher.Constraint("Vertical", 10, 3, 31, 3))
sketch3.addConstraint(Sketcher.Constraint("Vertical", 31, 3, 32, 3))
sketch3.addConstraint(Sketcher.Constraint("Vertical", 32, 3, 33, 3))
sketch3.addConstraint(Sketcher.Constraint("Vertical", 33, 3, 34, 3))
sketch3.addConstraint(Sketcher.Constraint("Vertical", 30, 3, 35, 3))
sketch3.addConstraint(Sketcher.Constraint("Vertical", 29, 3, 36, 3))
sketch3.addConstraint(Sketcher.Constraint("Vertical", 37, 3, 38, 3))
sketch3.addConstraint(Sketcher.Constraint("Vertical", 38, 3, 39, 3))
sketch3.addConstraint(Sketcher.Constraint("Vertical", 39, 3, 40, 3))
sketch3.addConstraint(Sketcher.Constraint("Vertical", 40, 3, 41, 3))
sketch3.addConstraint(Sketcher.Constraint("Vertical", 41, 3, 42, 3))
sketch3.addConstraint(Sketcher.Constraint("Vertical", 42, 3, 43, 3))
sketch3.addConstraint(Sketcher.Constraint("Vertical", 43, 3, 44, 3))
sketch3.addConstraint(Sketcher.Constraint("Vertical", 45, 3, 47, 3))
sketch3.addConstraint(Sketcher.Constraint("Vertical", 46, 3, 48, 3))
sketch3.addConstraint(Sketcher.Constraint("Vertical", 47, 3, 49, 3))
sketch3.addConstraint(Sketcher.Constraint("Vertical", 48, 3, 50, 3))
sketch3.addConstraint(Sketcher.Constraint("Vertical", 50, 3, 51, 3))
sketch3.addConstraint(Sketcher.Constraint("Vertical", 49, 3, 52, 3))
sketch3.addConstraint(Sketcher.Constraint("Vertical", 52, 3, 53, 3))
sketch3.addConstraint(Sketcher.Constraint("Vertical", 51, 3, 54, 3))
sketch3.addConstraint(Sketcher.Constraint("Vertical", 54, 3, 55, 3))
sketch3.addConstraint(Sketcher.Constraint("Vertical", 53, 3, 56, 3))
sketch3.addConstraint(Sketcher.Constraint("Vertical", 56, 3, 57, 3))
sketch3.addConstraint(Sketcher.Constraint("Vertical", 55, 3, 58, 3))
sketch3.addConstraint(Sketcher.Constraint("Vertical", 58, 3, 59, 3))
sketch3.addConstraint(Sketcher.Constraint("Vertical", 57, 3, 60, 3))
sketch3.addConstraint(Sketcher.Constraint("Vertical", 16, 3, 61, 3))
sketch3.addConstraint(Sketcher.Constraint("Vertical", 14, 3, 62, 3))
sketch3.addConstraint(Sketcher.Constraint("Vertical", 34, 3, 63, 3))
sketch3.addConstraint(Sketcher.Constraint("Diameter", 0, Q("0.144 in")))
sketch3.addConstraint(Sketcher.Constraint("DistanceX", -1, 1, 0, 3, Q("0.207 in")))
sketch3.addConstraint(Sketcher.Constraint("DistanceY", 34, 3, -1, 1, Q("0.4595 in")))
sketch3.addConstraint(Sketcher.Constraint("DistanceX", -1, 1, 15, 3, 5.26))
sketch3.addConstraint(Sketcher.Constraint("DistanceX", -1, 1, 2, 3, Q("0.505 in")))
sketch3.addConstraint(Sketcher.Constraint("DistanceX", -1, 1, 8, 3, Q("0.803 in")))
sketch3.addConstraint(Sketcher.Constraint("DistanceX", -1, 1, 17, 3, Q("1.101 in")))
sketch3.addConstraint(Sketcher.Constraint("DistanceX", -1, 1, 23, 3, Q("1.399 in")))
sketch3.addConstraint(Sketcher.Constraint("DistanceX", -1, 1, 37, 3, Q("1.697 in")))
sketch3.addConstraint(Sketcher.Constraint("DistanceX", -1, 1, 45, 3, Q("1.995 in")))
sketch3.addConstraint(Sketcher.Constraint("DistanceX", -1, 1, 46, 3, Q("2.293 in")))
sketch3.addConstraint(Sketcher.Constraint("DistanceY", 0, 3, -1, 1, Q("2.5455 in")))
sketch3.addConstraint(Sketcher.Constraint("DistanceY", 1, 3, -1, 1, Q("2.2475 in")))
sketch3.addConstraint(Sketcher.Constraint("DistanceY", 4, 3, -1, 1, Q("1.9495 in")))
sketch3.addConstraint(Sketcher.Constraint("DistanceY", 6, 3, -1, 1, Q("1.6515 in")))
sketch3.addConstraint(Sketcher.Constraint("DistanceY", 11, 3, -1, 1, Q("1.3535 in")))
sketch3.addConstraint(Sketcher.Constraint("DistanceY", 13, 3, -1, 1, Q("1.0555 in")))
sketch3.addConstraint(Sketcher.Constraint("DistanceY", 14, 3, -1, 1, Q("0.7575 in")))
pocket2 = doc.addObject("PartDesign::Pocket", "Pocket001")
body.addObject(pocket2)
pocket2.Profile = sketch3
pocket2.Length = Q("0.577 in")

doc.recompute()
